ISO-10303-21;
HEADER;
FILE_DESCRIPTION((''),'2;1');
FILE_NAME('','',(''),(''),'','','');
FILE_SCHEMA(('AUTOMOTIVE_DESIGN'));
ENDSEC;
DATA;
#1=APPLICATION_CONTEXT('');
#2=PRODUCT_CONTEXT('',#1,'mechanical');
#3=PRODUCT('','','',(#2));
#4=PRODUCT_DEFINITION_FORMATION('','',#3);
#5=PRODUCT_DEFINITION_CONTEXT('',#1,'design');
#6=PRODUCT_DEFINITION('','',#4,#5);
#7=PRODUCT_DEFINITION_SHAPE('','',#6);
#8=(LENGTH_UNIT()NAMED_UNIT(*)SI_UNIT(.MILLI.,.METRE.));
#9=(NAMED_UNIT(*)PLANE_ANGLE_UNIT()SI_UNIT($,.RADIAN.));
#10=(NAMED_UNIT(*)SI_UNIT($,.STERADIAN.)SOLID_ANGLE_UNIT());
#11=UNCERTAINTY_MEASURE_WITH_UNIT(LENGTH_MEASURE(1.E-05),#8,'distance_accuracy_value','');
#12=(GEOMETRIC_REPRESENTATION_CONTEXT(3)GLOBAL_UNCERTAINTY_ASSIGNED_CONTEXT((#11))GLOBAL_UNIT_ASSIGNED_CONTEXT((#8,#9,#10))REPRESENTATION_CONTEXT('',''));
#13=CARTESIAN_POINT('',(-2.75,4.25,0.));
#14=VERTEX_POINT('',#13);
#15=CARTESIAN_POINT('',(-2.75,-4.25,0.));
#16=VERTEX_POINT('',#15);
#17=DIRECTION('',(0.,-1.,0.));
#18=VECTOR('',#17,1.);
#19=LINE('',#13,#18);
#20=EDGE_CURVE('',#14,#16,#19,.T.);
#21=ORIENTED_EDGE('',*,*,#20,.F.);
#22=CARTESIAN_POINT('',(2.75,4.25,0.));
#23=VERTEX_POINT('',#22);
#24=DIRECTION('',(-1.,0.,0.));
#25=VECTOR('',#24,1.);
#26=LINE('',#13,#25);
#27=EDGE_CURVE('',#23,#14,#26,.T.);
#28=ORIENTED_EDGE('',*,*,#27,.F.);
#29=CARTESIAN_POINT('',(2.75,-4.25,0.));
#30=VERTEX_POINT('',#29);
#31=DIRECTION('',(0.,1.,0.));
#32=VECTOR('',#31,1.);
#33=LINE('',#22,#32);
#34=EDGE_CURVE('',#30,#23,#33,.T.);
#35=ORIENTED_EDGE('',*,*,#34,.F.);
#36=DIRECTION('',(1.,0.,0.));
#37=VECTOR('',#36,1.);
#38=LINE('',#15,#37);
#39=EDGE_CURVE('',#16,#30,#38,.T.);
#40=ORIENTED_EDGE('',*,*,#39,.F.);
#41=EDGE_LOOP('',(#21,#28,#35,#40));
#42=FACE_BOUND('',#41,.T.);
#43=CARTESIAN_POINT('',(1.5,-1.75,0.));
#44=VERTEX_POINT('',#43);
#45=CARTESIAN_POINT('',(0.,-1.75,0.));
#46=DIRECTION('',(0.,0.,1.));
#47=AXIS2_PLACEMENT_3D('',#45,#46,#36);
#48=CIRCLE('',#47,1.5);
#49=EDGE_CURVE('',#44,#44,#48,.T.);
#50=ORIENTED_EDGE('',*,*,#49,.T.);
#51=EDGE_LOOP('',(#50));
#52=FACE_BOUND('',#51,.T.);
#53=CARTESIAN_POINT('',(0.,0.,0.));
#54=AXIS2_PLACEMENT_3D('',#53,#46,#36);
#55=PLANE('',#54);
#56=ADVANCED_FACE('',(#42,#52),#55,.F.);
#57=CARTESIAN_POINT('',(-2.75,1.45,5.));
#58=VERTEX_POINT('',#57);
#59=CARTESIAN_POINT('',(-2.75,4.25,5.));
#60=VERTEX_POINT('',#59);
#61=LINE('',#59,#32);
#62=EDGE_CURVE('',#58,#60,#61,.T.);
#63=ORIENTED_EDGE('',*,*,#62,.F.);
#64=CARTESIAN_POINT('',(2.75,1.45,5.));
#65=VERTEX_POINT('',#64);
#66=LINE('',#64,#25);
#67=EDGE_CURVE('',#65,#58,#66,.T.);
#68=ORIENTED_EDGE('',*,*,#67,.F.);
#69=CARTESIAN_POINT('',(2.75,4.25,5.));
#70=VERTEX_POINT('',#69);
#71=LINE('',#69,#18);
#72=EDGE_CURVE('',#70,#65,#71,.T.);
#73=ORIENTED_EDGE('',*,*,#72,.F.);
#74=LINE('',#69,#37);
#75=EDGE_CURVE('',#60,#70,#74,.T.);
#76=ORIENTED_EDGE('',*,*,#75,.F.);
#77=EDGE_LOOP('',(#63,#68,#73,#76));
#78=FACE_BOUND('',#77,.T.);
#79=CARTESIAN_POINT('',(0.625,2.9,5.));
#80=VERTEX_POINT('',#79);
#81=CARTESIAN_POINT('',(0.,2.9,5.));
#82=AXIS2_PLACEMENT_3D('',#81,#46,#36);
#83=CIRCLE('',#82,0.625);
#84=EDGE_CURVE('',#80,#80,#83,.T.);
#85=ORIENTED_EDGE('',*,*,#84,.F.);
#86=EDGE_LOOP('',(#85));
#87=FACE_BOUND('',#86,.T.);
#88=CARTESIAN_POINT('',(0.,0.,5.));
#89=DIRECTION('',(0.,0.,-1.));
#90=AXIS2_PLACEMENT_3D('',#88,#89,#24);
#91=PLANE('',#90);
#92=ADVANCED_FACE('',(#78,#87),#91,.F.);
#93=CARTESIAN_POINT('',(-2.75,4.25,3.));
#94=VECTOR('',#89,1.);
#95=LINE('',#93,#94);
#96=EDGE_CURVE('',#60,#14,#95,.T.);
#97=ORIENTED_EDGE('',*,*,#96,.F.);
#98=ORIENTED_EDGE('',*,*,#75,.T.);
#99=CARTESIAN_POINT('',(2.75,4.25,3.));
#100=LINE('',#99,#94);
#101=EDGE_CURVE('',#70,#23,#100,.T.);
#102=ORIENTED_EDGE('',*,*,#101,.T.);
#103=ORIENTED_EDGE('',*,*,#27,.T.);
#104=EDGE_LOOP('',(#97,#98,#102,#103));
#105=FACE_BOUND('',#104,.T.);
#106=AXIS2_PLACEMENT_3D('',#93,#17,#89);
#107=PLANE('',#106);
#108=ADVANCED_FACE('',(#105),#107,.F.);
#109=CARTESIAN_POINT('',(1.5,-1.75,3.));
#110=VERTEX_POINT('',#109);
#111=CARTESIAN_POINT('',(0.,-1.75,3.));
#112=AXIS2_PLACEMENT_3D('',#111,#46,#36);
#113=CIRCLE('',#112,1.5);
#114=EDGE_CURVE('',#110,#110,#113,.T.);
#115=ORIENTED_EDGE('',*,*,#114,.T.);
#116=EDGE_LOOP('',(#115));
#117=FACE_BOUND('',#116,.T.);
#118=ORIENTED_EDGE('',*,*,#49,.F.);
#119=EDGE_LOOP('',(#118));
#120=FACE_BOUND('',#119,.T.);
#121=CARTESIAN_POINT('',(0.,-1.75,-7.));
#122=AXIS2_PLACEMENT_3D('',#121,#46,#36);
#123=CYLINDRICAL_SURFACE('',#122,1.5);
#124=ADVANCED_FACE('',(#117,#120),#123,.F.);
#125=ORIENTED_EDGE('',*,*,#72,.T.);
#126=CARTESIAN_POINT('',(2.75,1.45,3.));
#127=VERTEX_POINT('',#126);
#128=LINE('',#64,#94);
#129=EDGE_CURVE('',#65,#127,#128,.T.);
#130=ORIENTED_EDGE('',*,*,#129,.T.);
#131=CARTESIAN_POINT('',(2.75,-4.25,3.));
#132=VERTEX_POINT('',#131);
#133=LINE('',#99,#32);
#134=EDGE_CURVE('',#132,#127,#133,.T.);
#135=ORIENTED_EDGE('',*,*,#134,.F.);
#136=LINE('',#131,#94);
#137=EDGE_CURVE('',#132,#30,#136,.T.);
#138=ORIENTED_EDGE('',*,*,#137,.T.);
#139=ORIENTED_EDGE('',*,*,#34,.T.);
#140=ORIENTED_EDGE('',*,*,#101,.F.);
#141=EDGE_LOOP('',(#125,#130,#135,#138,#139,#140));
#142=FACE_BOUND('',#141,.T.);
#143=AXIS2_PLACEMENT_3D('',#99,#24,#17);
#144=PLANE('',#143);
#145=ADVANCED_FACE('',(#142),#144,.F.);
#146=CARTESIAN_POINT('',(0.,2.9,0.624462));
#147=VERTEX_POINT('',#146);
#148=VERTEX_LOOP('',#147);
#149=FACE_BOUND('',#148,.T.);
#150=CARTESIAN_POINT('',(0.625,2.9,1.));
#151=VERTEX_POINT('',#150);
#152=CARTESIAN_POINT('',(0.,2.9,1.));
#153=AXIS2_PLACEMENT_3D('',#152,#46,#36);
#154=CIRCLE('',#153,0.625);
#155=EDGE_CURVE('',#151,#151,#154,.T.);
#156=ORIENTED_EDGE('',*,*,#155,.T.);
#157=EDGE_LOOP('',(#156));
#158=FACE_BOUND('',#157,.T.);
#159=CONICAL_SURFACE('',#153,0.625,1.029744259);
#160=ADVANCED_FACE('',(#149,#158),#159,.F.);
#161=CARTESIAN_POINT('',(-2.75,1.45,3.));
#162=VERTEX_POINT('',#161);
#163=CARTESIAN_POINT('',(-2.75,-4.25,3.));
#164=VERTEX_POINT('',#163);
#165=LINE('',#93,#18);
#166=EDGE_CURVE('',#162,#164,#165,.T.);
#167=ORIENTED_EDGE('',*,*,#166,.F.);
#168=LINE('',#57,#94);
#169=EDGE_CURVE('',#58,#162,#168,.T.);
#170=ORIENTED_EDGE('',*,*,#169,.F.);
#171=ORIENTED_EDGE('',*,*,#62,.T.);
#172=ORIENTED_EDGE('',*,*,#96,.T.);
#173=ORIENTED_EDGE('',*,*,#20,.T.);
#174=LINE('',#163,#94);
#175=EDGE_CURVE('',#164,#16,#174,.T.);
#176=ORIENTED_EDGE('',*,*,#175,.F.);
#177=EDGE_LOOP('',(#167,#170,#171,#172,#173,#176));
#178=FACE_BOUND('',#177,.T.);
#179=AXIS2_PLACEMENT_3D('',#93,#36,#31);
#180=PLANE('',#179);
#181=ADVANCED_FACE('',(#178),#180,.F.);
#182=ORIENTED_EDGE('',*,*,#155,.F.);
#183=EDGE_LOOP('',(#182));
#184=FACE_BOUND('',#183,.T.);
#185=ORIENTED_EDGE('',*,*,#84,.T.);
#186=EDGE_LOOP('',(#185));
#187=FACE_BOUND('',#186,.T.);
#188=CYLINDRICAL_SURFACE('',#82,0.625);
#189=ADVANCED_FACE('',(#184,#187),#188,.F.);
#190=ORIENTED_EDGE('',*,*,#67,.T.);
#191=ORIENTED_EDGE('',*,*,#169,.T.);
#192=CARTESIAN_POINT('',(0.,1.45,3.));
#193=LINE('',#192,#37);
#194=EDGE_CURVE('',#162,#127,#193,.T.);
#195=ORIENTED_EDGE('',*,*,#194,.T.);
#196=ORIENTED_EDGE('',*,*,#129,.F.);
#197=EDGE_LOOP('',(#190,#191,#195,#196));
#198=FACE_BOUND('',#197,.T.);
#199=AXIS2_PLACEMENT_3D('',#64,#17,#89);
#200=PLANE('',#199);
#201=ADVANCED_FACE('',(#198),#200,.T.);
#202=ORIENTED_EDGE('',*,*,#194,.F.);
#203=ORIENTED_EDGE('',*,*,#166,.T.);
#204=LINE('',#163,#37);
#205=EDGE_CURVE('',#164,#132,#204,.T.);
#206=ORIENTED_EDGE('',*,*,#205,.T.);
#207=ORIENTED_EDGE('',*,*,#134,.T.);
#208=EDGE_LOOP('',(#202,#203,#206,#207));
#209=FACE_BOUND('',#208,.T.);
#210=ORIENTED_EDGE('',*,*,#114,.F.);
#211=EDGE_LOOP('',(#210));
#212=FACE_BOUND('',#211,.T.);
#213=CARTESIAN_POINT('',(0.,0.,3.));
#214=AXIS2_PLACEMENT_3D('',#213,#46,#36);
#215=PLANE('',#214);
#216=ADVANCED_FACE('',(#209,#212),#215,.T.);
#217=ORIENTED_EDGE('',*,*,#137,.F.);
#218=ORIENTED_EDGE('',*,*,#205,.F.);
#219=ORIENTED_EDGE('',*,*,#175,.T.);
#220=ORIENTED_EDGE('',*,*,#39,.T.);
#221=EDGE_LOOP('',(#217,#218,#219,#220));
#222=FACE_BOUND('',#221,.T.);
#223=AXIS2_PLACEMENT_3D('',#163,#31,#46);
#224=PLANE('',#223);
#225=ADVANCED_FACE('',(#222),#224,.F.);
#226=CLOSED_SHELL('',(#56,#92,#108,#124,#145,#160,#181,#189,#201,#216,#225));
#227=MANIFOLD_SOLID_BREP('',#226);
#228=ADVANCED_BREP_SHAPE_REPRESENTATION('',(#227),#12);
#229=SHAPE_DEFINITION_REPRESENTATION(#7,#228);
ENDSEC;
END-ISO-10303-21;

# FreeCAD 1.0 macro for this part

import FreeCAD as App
import Part
import Sketcher


def add_polygon(sketch, points):
    """Adds a closed chain of lines whose ends are joined by coincident constraints."""
    first, n = sketch.GeometryCount, len(points)
    for a, b in zip(points, points[1:] + points[:1]):
        sketch.addGeometry(Part.LineSegment(App.Vector(*a, 0), App.Vector(*b, 0)), False)
    for i in range(n):
        sketch.addConstraint(Sketcher.Constraint("Coincident", first + i, 2, first + (i + 1) % n, 1))

doc = App.newDocument("Part")
body = doc.addObject("PartDesign::Body", "Body")

# Sketch on XY plane
sketch1 = body.newObject("Sketcher::SketchObject", "Sketch")
sketch1.AttachmentSupport = (doc.getObject("XY_Plane"), [""])
sketch1.MapMode = "FlatFace"
add_polygon(sketch1, [(-3, 4), (-3, -4), (3, -4), (3, 4)])  # lines 0-3
sketch1.addConstraint([
    Sketcher.Constraint("Vertical", 0),
    Sketcher.Constraint("Horizontal", 1),
    Sketcher.Constraint("Vertical", 2),
    Sketcher.Constraint("Horizontal", 3),
    Sketcher.Constraint("Symmetric", 0, 2, 2, 2, -1, 1),
    Sketcher.Constraint("DistanceX", 1, 1, 1, 2, 5.5),
    Sketcher.Constraint("DistanceY", 0, 2, 0, 1, 8.5),
])
pad1 = body.newObject("PartDesign::Pad", "Pad")
pad1.Profile = sketch1
pad1.Length = 3

# Sketch on XY plane
sketch2 = body.newObject("Sketcher::SketchObject", "Sketch001")
sketch2.AttachmentSupport = (doc.getObject("XY_Plane"), [""])
sketch2.MapMode = "FlatFace"
sketch2.AttachmentOffset = App.Placement(App.Vector(0, 0, 3), App.Rotation())
sketch2.addGeometry(Part.Circle(App.Vector(0, -1.8, 0), App.Vector(0, 0, 1), 1.5), False)
sketch2.addConstraint([
    Sketcher.Constraint("PointOnObject", 0, 3, -2),
    Sketcher.Constraint("Diameter", 0, 3.0),
    Sketcher.Constraint("DistanceY", 0, 3, -1, 1, 1.75),
])
pocket1 = body.newObject("PartDesign::Pocket", "Pocket")
pocket1.Profile = sketch2
pocket1.Length = 10

# Sketch on XY plane
sketch3 = body.newObject("Sketcher::SketchObject", "Sketch002")
sketch3.AttachmentSupport = (doc.getObject("XY_Plane"), [""])
sketch3.MapMode = "FlatFace"
add_polygon(sketch3, [(2.8, 4.2), (2.8, 1.4), (-2.8, 1.4), (-2.8, 4.2)])  # lines 0-3
sketch3.addConstraint([
    Sketcher.Constraint("Vertical", 0),
    Sketcher.Constraint("Horizontal", 1),
    Sketcher.Constraint("Vertical", 2),
    Sketcher.Constraint("Horizontal", 3),
    Sketcher.Constraint("DistanceX", 1, 2, 1, 1, 5.5),
    Sketcher.Constraint("DistanceY", 0, 2, 0, 1, 2.8),
    Sketcher.Constraint("DistanceX", -1, 1, 0, 2, 2.75),
    Sketcher.Constraint("DistanceY", -1, 1, 0, 2, 1.45),
])
pad2 = body.newObject("PartDesign::Pad", "Pad001")
pad2.Profile = sketch3
pad2.Length = 5

# Sketch on XY plane
sketch4 = body.newObject("Sketcher::SketchObject", "Sketch003")
sketch4.AttachmentSupport = (doc.getObject("XY_Plane"), [""])
sketch4.MapMode = "FlatFace"
sketch4.AttachmentOffset = App.Placement(App.Vector(0, 0, 5), App.Rotation())
sketch4.addGeometry(Part.Circle(App.Vector(0, 2.9, 0), App.Vector(0, 0, 1), 0.6), False)
sketch4.addConstraint([
    Sketcher.Constraint("PointOnObject", 0, 3, -2),
    Sketcher.Constraint("Diameter", 0, 1.25),
    Sketcher.Constraint("DistanceY", -1, 1, 0, 3, 2.9),
])
doc.recompute()
hole = body.newObject("PartDesign::Hole", "Hole")
hole.Profile = sketch4
hole.ThreadType = "None"
hole.Diameter = 1.25
hole.DepthType = "Dimension"
hole.Depth = 4
hole.DrillPoint = "Angled"
hole.DrillPointAngle = 118

doc.recompute()
